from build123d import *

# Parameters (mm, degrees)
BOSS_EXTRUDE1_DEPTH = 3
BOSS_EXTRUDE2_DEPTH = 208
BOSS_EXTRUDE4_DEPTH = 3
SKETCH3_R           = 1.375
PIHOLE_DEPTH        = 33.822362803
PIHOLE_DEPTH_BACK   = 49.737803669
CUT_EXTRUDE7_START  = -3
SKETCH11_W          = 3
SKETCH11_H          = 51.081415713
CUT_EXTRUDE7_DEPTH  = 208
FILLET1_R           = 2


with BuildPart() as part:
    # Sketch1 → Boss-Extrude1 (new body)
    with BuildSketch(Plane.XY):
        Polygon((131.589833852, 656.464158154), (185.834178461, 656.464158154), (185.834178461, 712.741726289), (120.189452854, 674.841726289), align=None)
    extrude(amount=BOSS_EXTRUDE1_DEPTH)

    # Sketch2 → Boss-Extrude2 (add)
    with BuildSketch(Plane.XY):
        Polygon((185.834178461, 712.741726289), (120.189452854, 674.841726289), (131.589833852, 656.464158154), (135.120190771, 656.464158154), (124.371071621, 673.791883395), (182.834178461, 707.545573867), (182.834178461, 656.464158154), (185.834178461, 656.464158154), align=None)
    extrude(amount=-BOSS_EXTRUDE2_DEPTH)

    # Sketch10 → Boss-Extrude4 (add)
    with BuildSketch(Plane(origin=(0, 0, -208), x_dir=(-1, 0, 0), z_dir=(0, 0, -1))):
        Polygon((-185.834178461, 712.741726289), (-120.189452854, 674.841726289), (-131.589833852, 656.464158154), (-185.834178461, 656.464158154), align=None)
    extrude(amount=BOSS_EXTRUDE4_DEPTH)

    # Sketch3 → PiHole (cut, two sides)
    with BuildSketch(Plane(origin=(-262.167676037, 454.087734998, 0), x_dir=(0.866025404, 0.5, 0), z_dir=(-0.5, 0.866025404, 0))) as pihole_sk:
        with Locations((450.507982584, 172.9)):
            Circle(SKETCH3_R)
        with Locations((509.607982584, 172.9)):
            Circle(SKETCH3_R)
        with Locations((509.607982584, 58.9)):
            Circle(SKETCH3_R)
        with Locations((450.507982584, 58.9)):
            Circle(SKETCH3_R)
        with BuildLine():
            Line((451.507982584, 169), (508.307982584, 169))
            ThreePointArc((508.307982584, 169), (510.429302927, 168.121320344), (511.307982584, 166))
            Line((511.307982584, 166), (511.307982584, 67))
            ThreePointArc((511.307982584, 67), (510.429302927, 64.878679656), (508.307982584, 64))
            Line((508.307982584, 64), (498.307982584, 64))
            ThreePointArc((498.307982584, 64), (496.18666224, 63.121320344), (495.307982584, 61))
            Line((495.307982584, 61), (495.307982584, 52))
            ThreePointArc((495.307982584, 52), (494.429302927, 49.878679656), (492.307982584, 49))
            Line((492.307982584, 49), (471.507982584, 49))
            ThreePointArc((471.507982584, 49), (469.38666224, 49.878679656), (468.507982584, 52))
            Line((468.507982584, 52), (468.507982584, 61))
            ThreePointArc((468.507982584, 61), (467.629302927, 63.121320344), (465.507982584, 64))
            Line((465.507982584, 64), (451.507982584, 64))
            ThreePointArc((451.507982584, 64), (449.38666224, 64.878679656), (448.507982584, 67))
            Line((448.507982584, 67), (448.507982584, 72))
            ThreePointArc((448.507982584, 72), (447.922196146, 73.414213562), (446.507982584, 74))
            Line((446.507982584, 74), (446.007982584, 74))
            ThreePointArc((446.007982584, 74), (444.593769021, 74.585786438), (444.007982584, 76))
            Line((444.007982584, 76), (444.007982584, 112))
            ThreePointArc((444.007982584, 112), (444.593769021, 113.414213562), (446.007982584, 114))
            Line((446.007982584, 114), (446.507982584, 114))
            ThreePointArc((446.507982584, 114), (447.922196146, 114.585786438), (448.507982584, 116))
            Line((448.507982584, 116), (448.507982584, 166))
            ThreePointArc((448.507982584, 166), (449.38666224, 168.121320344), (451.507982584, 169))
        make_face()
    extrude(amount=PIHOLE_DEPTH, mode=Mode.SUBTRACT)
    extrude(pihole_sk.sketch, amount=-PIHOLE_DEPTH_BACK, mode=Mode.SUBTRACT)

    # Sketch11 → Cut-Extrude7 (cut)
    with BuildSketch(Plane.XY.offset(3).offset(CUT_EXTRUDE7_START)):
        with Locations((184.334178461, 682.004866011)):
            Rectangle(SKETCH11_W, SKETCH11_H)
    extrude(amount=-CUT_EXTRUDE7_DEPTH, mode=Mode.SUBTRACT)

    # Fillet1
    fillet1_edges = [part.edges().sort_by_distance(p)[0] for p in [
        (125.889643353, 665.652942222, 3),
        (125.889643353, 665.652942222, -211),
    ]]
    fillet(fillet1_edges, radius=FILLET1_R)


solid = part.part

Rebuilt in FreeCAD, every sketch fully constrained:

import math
import FreeCAD as App
import Part
import Sketcher
from FreeCAD import Vector
Q = App.Units.Quantity


def edges_at(feature, points):
    """Names of the edges that pass closest to the given points."""
    edges = feature.Shape.Edges
    near = lambda p: min(range(len(edges)), key=lambda i: edges[i].distToShape(Part.Vertex(*p))[0])
    return sorted({f"Edge{near(p) + 1}" for p in points})


def add_polygon(sketch, points):
    """Adds a closed chain of lines whose ends are joined by coincident constraints."""
    first, n = sketch.GeometryCount, len(points)
    for a, b in zip(points, points[1:] + points[:1]):
        sketch.addGeometry(Part.LineSegment(App.Vector(*a, 0), App.Vector(*b, 0)), False)
    for i in range(n):
        sketch.addConstraint(Sketcher.Constraint("Coincident", first + i, 2, first + (i + 1) % n, 1))

doc = App.newDocument("Part")
body = doc.addObject("PartDesign::Body", "Body")

sketch1 = body.newObject("Sketcher::SketchObject", "Sketch")
sketch1.AttachmentSupport = (doc.getObject("XY_Plane"), [""])
sketch1.MapMode = "FlatFace"
add_polygon(sketch1, [(132, 656), (186, 656), (186, 713), (120, 675)])
sketch1.addConstraint(Sketcher.Constraint("Horizontal", 0))
sketch1.addConstraint(Sketcher.Constraint("Vertical", 1))
sketch1.addConstraint(Sketcher.Constraint("Angle", 2, Q("-150 deg")))
sketch1.addConstraint(Sketcher.Constraint("Distance", 2, 75.8))
sketch1.addConstraint(Sketcher.Constraint("DistanceY", 1, 1, 1, 2, 56.277568))
sketch1.addConstraint(Sketcher.Constraint("Distance", 3, 21.626458))
sketch1.addConstraint(Sketcher.Constraint("DistanceX", -1, 1, 0, 2, 185.834178))
sketch1.addConstraint(Sketcher.Constraint("DistanceY", -1, 1, 0, 2, 656.464158))
pad1 = body.newObject("PartDesign::Pad", "Pad")
pad1.Profile = sketch1
pad1.Length = 3

sketch2 = body.newObject("Sketcher::SketchObject", "Sketch001")
sketch2.AttachmentSupport = (doc.getObject("XY_Plane"), [""])
sketch2.MapMode = "FlatFace"
add_polygon(sketch2, [(185.8, 712.7), (120.2, 674.8), (131.6, 656.5), (135.1, 656.5), (124.4, 673.8), (182.8, 707.5), (182.8, 656.5), (185.8, 656.5)])
sketch2.addConstraint(Sketcher.Constraint("Horizontal", 2))
sketch2.addConstraint(Sketcher.Constraint("Vertical", 5))
sketch2.addConstraint(Sketcher.Constraint("Horizontal", 6))
sketch2.addConstraint(Sketcher.Constraint("Vertical", 7))
sketch2.addConstraint(Sketcher.Constraint("Parallel", 1, 3))
sketch2.addConstraint(Sketcher.Constraint("Parallel", 0, 4))
sketch2.addConstraint(Sketcher.Constraint("Horizontal", 2, 2, 5, 2))
sketch2.addConstraint(Sketcher.Constraint("DistanceX", 6, 1, 6, 2, 3.0))
sketch2.addConstraint(Sketcher.Constraint("Angle", 0, Q("-150 deg")))
sketch2.addConstraint(Sketcher.Constraint("Distance", 0, 75.8))
sketch2.addConstraint(Sketcher.Constraint("DistanceY", 7, 1, 7, 2, 56.277568))
sketch2.addConstraint(Sketcher.Constraint("Distance", 1, 21.626458))
sketch2.addConstraint(Sketcher.Constraint("Distance", 3, 20.391018))
sketch2.addConstraint(Sketcher.Constraint("Distance", 4, 67.507381))
sketch2.addConstraint(Sketcher.Constraint("DistanceY", -1, 1, 1, 2, 656.464158))
sketch2.addConstraint(Sketcher.Constraint("DistanceX", -1, 1, 2, 2, 135.120191))
pad2 = body.newObject("PartDesign::Pad", "Pad001")
pad2.Profile = sketch2
pad2.Length = 208
pad2.Reversed = True

sketch3 = body.newObject("Sketcher::SketchObject", "Sketch002")
sketch3.AttachmentSupport = (doc.getObject("XY_Plane"), [""])
sketch3.MapMode = "FlatFace"
sketch3.AttachmentOffset = App.Placement(Vector(0, 0, -208), App.Rotation())
add_polygon(sketch3, [(120, 675), (186, 713), (186, 656), (132, 656)])
sketch3.addConstraint(Sketcher.Constraint("Vertical", 1))
sketch3.addConstraint(Sketcher.Constraint("Horizontal", 2))
sketch3.addConstraint(Sketcher.Constraint("Angle", 0, Q("30 deg")))
sketch3.addConstraint(Sketcher.Constraint("Distance", 0, 75.8))
sketch3.addConstraint(Sketcher.Constraint("DistanceY", 1, 2, 1, 1, 56.277568))
sketch3.addConstraint(Sketcher.Constraint("Distance", 3, 21.626458))
sketch3.addConstraint(Sketcher.Constraint("DistanceX", -1, 1, 0, 2, 185.834178))
sketch3.addConstraint(Sketcher.Constraint("DistanceY", -1, 1, 1, 2, 656.464158))
pad3 = body.newObject("PartDesign::Pad", "Pad002")
pad3.Profile = sketch3
pad3.Length = 3
pad3.Reversed = True

sketch4 = body.newObject("Sketcher::SketchObject", "Sketch003")
sketch4.Placement = App.Placement(Vector(-262.167676, 454.087735, 0), App.Rotation(Vector(0.866025404, 0.5, 0), Vector(0, 0, -1), Vector(-0.5, 0.866025404, 0), "ZXY"))
sketch4.addGeometry(Part.Circle(Vector(450.5, 172.9, 0), Vector(0, 0, 1), 1.4), False)
sketch4.addGeometry(Part.Circle(Vector(509.6, 172.9, 0), Vector(0, 0, 1), 1.4), False)
sketch4.addGeometry(Part.Circle(Vector(509.6, 58.9, 0), Vector(0, 0, 1), 1.4), False)
sketch4.addGeometry(Part.Circle(Vector(450.5, 58.9, 0), Vector(0, 0, 1), 1.4), False)
sketch4.addGeometry(Part.LineSegment(Vector(508.3, 169, 0), Vector(451.5, 169, 0)), False)
sketch4.addGeometry(Part.ArcOfCircle(Part.Circle(Vector(451.5, 166, 0), Vector(0, 0, 1), 3), math.radians(90), math.radians(180)), False)
sketch4.addGeometry(Part.LineSegment(Vector(448.5, 166, 0), Vector(448.5, 116, 0)), False)
sketch4.addGeometry(Part.ArcOfCircle(Part.Circle(Vector(446.5, 116, 0), Vector(0, 0, 1), 2), math.radians(-90), math.radians(0)), False)
sketch4.addGeometry(Part.LineSegment(Vector(446.5, 114, 0), Vector(446, 114, 0)), False)
sketch4.addGeometry(Part.ArcOfCircle(Part.Circle(Vector(446, 112, 0), Vector(0, 0, 1), 2), math.radians(90), math.radians(180)), False)
sketch4.addGeometry(Part.LineSegment(Vector(444, 112, 0), Vector(444, 76, 0)), False)
sketch4.addGeometry(Part.ArcOfCircle(Part.Circle(Vector(446, 76, 0), Vector(0, 0, 1), 2), math.radians(180), math.radians(270)), False)
sketch4.addGeometry(Part.LineSegment(Vector(446, 74, 0), Vector(446.5, 74, 0)), False)
sketch4.addGeometry(Part.ArcOfCircle(Part.Circle(Vector(446.5, 72, 0), Vector(0, 0, 1), 2), math.radians(0), math.radians(90)), False)
sketch4.addGeometry(Part.LineSegment(Vector(448.5, 72, 0), Vector(448.5, 67, 0)), False)
sketch4.addGeometry(Part.ArcOfCircle(Part.Circle(Vector(451.5, 67, 0), Vector(0, 0, 1), 3), math.radians(180), math.radians(270)), False)
sketch4.addGeometry(Part.LineSegment(Vector(451.5, 64, 0), Vector(465.5, 64, 0)), False)
sketch4.addGeometry(Part.ArcOfCircle(Part.Circle(Vector(465.5, 61, 0), Vector(0, 0, 1), 3), math.radians(0), math.radians(90)), False)
sketch4.addGeometry(Part.LineSegment(Vector(468.5, 61, 0), Vector(468.5, 52, 0)), False)
sketch4.addGeometry(Part.ArcOfCircle(Part.Circle(Vector(471.5, 52, 0), Vector(0, 0, 1), 3), math.radians(180), math.radians(270)), False)
sketch4.addGeometry(Part.LineSegment(Vector(471.5, 49, 0), Vector(492.3, 49, 0)), False)
sketch4.addGeometry(Part.ArcOfCircle(Part.Circle(Vector(492.3, 52, 0), Vector(0, 0, 1), 3), math.radians(-90), math.radians(0)), False)
sketch4.addGeometry(Part.LineSegment(Vector(495.3, 52, 0), Vector(495.3, 61, 0)), False)
sketch4.addGeometry(Part.ArcOfCircle(Part.Circle(Vector(498.3, 61, 0), Vector(0, 0, 1), 3), math.radians(90), math.radians(180)), False)
sketch4.addGeometry(Part.LineSegment(Vector(498.3, 64, 0), Vector(508.3, 64, 0)), False)
sketch4.addGeometry(Part.ArcOfCircle(Part.Circle(Vector(508.3, 67, 0), Vector(0, 0, 1), 3), math.radians(-90), math.radians(0)), False)
sketch4.addGeometry(Part.LineSegment(Vector(511.3, 67, 0), Vector(511.3, 166, 0)), False)
sketch4.addGeometry(Part.ArcOfCircle(Part.Circle(Vector(508.3, 166, 0), Vector(0, 0, 1), 3), math.radians(0), math.radians(90)), False)
sketch4.addConstraint(Sketcher.Constraint("Tangent", 4, 2, 5, 1))
sketch4.addConstraint(Sketcher.Constraint("Tangent", 5, 2, 6, 1))
sketch4.addConstraint(Sketcher.Constraint("Tangent", 6, 2, 7, 2))
sketch4.addConstraint(Sketcher.Constraint("Tangent", 7, 1, 8, 1))
sketch4.addConstraint(Sketcher.Constraint("Tangent", 8, 2, 9, 1))
sketch4.addConstraint(Sketcher.Constraint("Tangent", 9, 2, 10, 1))
sketch4.addConstraint(Sketcher.Constraint("Tangent", 10, 2, 11, 1))
sketch4.addConstraint(Sketcher.Constraint("Tangent", 11, 2, 12, 1))
sketch4.addConstraint(Sketcher.Constraint("Tangent", 12, 2, 13, 2))
sketch4.addConstraint(Sketcher.Constraint("Tangent", 13, 1, 14, 1))
sketch4.addConstraint(Sketcher.Constraint("Tangent", 14, 2, 15, 1))
sketch4.addConstraint(Sketcher.Constraint("Tangent", 15, 2, 16, 1))
sketch4.addConstraint(Sketcher.Constraint("Tangent", 16, 2, 17, 2))
sketch4.addConstraint(Sketcher.Constraint("Tangent", 17, 1, 18, 1))
sketch4.addConstraint(Sketcher.Constraint("Tangent", 18, 2, 19, 1))
sketch4.addConstraint(Sketcher.Constraint("Tangent", 19, 2, 20, 1))
sketch4.addConstraint(Sketcher.Constraint("Tangent", 20, 2, 21, 1))
sketch4.addConstraint(Sketcher.Constraint("Tangent", 21, 2, 22, 1))
sketch4.addConstraint(Sketcher.Constraint("Tangent", 22, 2, 23, 2))
sketch4.addConstraint(Sketcher.Constraint("Tangent", 23, 1, 24, 1))
sketch4.addConstraint(Sketcher.Constraint("Tangent", 24, 2, 25, 1))
sketch4.addConstraint(Sketcher.Constraint("Tangent", 25, 2, 26, 1))
sketch4.addConstraint(Sketcher.Constraint("Tangent", 26, 2, 27, 1))
sketch4.addConstraint(Sketcher.Constraint("Tangent", 27, 2, 4, 1))
sketch4.addConstraint(Sketcher.Constraint("Horizontal", 4))
sketch4.addConstraint(Sketcher.Constraint("Vertical", 6))
sketch4.addConstraint(Sketcher.Constraint("Horizontal", 8))
sketch4.addConstraint(Sketcher.Constraint("Vertical", 10))
sketch4.addConstraint(Sketcher.Constraint("Horizontal", 12))
sketch4.addConstraint(Sketcher.Constraint("Vertical", 14))
sketch4.addConstraint(Sketcher.Constraint("Horizontal", 16))
sketch4.addConstraint(Sketcher.Constraint("Vertical", 18))
sketch4.addConstraint(Sketcher.Constraint("Horizontal", 20))
sketch4.addConstraint(Sketcher.Constraint("Vertical", 22))
sketch4.addConstraint(Sketcher.Constraint("Horizontal", 24))
sketch4.addConstraint(Sketcher.Constraint("Vertical", 26))
sketch4.addConstraint(Sketcher.Constraint("Equal", 0, 1))
sketch4.addConstraint(Sketcher.Constraint("Equal", 1, 2))
sketch4.addConstraint(Sketcher.Constraint("Equal", 2, 3))
sketch4.addConstraint(Sketcher.Constraint("Equal", 7, 9))
sketch4.addConstraint(Sketcher.Constraint("Equal", 9, 11))
sketch4.addConstraint(Sketcher.Constraint("Equal", 11, 13))
sketch4.addConstraint(Sketcher.Constraint("Equal", 5, 15))
sketch4.addConstraint(Sketcher.Constraint("Equal", 15, 17))
sketch4.addConstraint(Sketcher.Constraint("Equal", 17, 19))
sketch4.addConstraint(Sketcher.Constraint("Equal", 19, 21))
sketch4.addConstraint(Sketcher.Constraint("Equal", 21, 23))
sketch4.addConstraint(Sketcher.Constraint("Equal", 23, 25))
sketch4.addConstraint(Sketcher.Constraint("Equal", 25, 27))
sketch4.addConstraint(Sketcher.Constraint("Horizontal", 0, 3, 1, 3))
sketch4.addConstraint(Sketcher.Constraint("Horizontal", 2, 3, 3, 3))
sketch4.addConstraint(Sketcher.Constraint("Horizontal", 17, 3, 23, 3))
sketch4.addConstraint(Sketcher.Constraint("Vertical", 1, 3, 2, 3))
sketch4.addConstraint(Sketcher.Constraint("Vertical", 0, 3, 3, 3))
sketch4.addConstraint(Sketcher.Constraint("Vertical", 7, 3, 13, 3))
sketch4.addConstraint(Sketcher.Constraint("Radius", 5, 3.0))
sketch4.addConstraint(Sketcher.Constraint("Radius", 7, 2.0))
sketch4.addConstraint(Sketcher.Constraint("Diameter", 0, 2.75))
sketch4.addConstraint(Sketcher.Constraint("DistanceX", 16, 1, 16, 2, 14.0))
sketch4.addConstraint(Sketcher.Constraint("DistanceX", 24, 1, 24, 2, 10.0))
sketch4.addConstraint(Sketcher.Constraint("DistanceY", 6, 2, 6, 1, 50.0))
sketch4.addConstraint(Sketcher.Constraint("DistanceY", 10, 2, 10, 1, 36.0))
sketch4.addConstraint(Sketcher.Constraint("DistanceY", 14, 2, 14, 1, 5.0))
sketch4.addConstraint(Sketcher.Constraint("DistanceY", 18, 2, 18, 1, 9.0))
sketch4.addConstraint(Sketcher.Constraint("DistanceX", 4, 2, 4, 1, 56.8))
sketch4.addConstraint(Sketcher.Constraint("DistanceX", 8, 2, 8, 1, 0.5))
sketch4.addConstraint(Sketcher.Constraint("DistanceY", -1, 1, 5, 3, 166.0))
sketch4.addConstraint(Sketcher.Constraint("DistanceY", 2, 3, 1, 3, 114.0))
sketch4.addConstraint(Sketcher.Constraint("DistanceX", 0, 3, 5, 3, 1.0))
sketch4.addConstraint(Sketcher.Constraint("DistanceY", -1, 1, 0, 3, 172.9))
sketch4.addConstraint(Sketcher.Constraint("DistanceX", 0, 3, 1, 3, 59.1))
sketch4.addConstraint(Sketcher.Constraint("DistanceX", -1, 1, 0, 3, 450.507983))
pocket1 = body.newObject("PartDesign::Pocket", "Pocket")
pocket1.Profile = sketch4
pocket1.Type = "ThroughAll"
pocket1.Midplane = True

sketch5 = body.newObject("Sketcher::SketchObject", "Sketch004")
sketch5.AttachmentSupport = (doc.getObject("XY_Plane"), [""])
sketch5.MapMode = "FlatFace"
add_polygon(sketch5, [(182.8, 707.5), (182.8, 656.5), (185.8, 656.5), (185.8, 707.5)])
sketch5.addConstraint(Sketcher.Constraint("Vertical", 0))
sketch5.addConstraint(Sketcher.Constraint("Horizontal", 1))
sketch5.addConstraint(Sketcher.Constraint("Vertical", 2))
sketch5.addConstraint(Sketcher.Constraint("Horizontal", 3))
sketch5.addConstraint(Sketcher.Constraint("DistanceX", 1, 1, 1, 2, 3.0))
sketch5.addConstraint(Sketcher.Constraint("DistanceY", 0, 2, 0, 1, 51.081416))
sketch5.addConstraint(Sketcher.Constraint("DistanceX", -1, 1, 0, 2, 182.834178))
sketch5.addConstraint(Sketcher.Constraint("DistanceY", -1, 1, 0, 2, 656.464158))
pocket2 = body.newObject("PartDesign::Pocket", "Pocket001")
pocket2.Profile = sketch5
pocket2.Length = 208
doc.recompute()

fillet = body.newObject("PartDesign::Fillet", "Fillet")
fillet.Base = (pocket2, edges_at(pocket2, [(125.89, 665.653, 3), (125.89, 665.653, -211)]))
fillet.Radius = 2

doc.recompute()
